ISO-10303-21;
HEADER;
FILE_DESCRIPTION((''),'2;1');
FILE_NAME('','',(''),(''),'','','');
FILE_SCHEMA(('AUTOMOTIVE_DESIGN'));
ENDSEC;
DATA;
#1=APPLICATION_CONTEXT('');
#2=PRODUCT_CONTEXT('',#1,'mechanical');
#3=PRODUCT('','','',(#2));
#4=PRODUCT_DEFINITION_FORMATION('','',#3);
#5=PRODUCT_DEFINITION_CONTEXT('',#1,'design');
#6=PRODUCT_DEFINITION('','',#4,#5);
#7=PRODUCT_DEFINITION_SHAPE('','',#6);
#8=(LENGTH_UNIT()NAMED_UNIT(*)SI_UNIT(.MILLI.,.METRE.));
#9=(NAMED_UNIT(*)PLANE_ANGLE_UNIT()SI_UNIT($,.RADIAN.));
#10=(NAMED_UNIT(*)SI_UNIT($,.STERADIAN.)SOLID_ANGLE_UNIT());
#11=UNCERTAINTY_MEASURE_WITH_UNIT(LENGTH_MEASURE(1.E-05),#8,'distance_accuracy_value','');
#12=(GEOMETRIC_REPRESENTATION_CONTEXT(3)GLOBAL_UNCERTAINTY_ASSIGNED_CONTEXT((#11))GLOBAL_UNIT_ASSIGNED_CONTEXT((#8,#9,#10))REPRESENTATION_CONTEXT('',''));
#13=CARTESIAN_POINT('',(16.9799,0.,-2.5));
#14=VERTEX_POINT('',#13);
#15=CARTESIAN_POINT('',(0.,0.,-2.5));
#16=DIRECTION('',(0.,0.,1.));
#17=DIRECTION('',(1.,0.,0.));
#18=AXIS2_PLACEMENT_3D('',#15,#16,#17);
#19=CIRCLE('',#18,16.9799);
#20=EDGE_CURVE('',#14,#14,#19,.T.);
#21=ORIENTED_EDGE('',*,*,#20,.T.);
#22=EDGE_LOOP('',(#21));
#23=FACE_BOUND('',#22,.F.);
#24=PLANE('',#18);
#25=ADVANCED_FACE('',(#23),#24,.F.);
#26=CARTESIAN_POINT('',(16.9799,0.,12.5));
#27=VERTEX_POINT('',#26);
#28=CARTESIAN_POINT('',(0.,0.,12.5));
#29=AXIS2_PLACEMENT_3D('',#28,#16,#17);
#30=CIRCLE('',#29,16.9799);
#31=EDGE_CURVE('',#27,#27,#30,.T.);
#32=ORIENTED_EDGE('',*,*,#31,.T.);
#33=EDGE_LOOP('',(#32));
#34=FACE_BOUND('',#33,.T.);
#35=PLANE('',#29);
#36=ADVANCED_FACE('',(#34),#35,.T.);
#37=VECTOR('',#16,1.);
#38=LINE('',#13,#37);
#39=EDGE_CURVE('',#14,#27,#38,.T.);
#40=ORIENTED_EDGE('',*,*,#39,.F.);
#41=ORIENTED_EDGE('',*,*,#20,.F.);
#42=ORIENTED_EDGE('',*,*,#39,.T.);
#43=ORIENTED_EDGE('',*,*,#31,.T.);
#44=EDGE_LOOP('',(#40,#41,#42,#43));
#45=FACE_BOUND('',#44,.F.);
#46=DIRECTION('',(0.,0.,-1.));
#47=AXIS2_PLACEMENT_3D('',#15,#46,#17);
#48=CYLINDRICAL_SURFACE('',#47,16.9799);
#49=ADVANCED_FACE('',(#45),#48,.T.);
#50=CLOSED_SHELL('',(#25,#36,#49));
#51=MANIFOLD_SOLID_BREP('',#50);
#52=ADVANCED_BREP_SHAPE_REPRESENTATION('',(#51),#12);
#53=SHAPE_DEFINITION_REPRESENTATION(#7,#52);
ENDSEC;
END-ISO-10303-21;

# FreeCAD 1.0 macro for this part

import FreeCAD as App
import Part
import Sketcher
from FreeCAD import Vector

doc = App.newDocument("Part")
body = doc.addObject("PartDesign::Body", "Body")

# Sketch on XY plane
sketch1 = body.newObject("Sketcher::SketchObject", "Sketch")
sketch1.AttachmentSupport = (doc.getObject("XY_Plane"), [""])
sketch1.MapMode = "FlatFace"
sketch1.AttachmentOffset = App.Placement(Vector(0, 0, -2.5), App.Rotation())
sketch1.addGeometry(Part.Circle(Vector(0, 0, 0), Vector(0, 0, 1), 17), False)
sketch1.addConstraint([
    Sketcher.Constraint("Coincident", 0, 3, -1, 1),
    Sketcher.Constraint("Diameter", 0, 33.9598),
])
pad1 = body.newObject("PartDesign::Pad", "Pad")
pad1.Profile = sketch1
pad1.Length = 15

doc.recompute()
